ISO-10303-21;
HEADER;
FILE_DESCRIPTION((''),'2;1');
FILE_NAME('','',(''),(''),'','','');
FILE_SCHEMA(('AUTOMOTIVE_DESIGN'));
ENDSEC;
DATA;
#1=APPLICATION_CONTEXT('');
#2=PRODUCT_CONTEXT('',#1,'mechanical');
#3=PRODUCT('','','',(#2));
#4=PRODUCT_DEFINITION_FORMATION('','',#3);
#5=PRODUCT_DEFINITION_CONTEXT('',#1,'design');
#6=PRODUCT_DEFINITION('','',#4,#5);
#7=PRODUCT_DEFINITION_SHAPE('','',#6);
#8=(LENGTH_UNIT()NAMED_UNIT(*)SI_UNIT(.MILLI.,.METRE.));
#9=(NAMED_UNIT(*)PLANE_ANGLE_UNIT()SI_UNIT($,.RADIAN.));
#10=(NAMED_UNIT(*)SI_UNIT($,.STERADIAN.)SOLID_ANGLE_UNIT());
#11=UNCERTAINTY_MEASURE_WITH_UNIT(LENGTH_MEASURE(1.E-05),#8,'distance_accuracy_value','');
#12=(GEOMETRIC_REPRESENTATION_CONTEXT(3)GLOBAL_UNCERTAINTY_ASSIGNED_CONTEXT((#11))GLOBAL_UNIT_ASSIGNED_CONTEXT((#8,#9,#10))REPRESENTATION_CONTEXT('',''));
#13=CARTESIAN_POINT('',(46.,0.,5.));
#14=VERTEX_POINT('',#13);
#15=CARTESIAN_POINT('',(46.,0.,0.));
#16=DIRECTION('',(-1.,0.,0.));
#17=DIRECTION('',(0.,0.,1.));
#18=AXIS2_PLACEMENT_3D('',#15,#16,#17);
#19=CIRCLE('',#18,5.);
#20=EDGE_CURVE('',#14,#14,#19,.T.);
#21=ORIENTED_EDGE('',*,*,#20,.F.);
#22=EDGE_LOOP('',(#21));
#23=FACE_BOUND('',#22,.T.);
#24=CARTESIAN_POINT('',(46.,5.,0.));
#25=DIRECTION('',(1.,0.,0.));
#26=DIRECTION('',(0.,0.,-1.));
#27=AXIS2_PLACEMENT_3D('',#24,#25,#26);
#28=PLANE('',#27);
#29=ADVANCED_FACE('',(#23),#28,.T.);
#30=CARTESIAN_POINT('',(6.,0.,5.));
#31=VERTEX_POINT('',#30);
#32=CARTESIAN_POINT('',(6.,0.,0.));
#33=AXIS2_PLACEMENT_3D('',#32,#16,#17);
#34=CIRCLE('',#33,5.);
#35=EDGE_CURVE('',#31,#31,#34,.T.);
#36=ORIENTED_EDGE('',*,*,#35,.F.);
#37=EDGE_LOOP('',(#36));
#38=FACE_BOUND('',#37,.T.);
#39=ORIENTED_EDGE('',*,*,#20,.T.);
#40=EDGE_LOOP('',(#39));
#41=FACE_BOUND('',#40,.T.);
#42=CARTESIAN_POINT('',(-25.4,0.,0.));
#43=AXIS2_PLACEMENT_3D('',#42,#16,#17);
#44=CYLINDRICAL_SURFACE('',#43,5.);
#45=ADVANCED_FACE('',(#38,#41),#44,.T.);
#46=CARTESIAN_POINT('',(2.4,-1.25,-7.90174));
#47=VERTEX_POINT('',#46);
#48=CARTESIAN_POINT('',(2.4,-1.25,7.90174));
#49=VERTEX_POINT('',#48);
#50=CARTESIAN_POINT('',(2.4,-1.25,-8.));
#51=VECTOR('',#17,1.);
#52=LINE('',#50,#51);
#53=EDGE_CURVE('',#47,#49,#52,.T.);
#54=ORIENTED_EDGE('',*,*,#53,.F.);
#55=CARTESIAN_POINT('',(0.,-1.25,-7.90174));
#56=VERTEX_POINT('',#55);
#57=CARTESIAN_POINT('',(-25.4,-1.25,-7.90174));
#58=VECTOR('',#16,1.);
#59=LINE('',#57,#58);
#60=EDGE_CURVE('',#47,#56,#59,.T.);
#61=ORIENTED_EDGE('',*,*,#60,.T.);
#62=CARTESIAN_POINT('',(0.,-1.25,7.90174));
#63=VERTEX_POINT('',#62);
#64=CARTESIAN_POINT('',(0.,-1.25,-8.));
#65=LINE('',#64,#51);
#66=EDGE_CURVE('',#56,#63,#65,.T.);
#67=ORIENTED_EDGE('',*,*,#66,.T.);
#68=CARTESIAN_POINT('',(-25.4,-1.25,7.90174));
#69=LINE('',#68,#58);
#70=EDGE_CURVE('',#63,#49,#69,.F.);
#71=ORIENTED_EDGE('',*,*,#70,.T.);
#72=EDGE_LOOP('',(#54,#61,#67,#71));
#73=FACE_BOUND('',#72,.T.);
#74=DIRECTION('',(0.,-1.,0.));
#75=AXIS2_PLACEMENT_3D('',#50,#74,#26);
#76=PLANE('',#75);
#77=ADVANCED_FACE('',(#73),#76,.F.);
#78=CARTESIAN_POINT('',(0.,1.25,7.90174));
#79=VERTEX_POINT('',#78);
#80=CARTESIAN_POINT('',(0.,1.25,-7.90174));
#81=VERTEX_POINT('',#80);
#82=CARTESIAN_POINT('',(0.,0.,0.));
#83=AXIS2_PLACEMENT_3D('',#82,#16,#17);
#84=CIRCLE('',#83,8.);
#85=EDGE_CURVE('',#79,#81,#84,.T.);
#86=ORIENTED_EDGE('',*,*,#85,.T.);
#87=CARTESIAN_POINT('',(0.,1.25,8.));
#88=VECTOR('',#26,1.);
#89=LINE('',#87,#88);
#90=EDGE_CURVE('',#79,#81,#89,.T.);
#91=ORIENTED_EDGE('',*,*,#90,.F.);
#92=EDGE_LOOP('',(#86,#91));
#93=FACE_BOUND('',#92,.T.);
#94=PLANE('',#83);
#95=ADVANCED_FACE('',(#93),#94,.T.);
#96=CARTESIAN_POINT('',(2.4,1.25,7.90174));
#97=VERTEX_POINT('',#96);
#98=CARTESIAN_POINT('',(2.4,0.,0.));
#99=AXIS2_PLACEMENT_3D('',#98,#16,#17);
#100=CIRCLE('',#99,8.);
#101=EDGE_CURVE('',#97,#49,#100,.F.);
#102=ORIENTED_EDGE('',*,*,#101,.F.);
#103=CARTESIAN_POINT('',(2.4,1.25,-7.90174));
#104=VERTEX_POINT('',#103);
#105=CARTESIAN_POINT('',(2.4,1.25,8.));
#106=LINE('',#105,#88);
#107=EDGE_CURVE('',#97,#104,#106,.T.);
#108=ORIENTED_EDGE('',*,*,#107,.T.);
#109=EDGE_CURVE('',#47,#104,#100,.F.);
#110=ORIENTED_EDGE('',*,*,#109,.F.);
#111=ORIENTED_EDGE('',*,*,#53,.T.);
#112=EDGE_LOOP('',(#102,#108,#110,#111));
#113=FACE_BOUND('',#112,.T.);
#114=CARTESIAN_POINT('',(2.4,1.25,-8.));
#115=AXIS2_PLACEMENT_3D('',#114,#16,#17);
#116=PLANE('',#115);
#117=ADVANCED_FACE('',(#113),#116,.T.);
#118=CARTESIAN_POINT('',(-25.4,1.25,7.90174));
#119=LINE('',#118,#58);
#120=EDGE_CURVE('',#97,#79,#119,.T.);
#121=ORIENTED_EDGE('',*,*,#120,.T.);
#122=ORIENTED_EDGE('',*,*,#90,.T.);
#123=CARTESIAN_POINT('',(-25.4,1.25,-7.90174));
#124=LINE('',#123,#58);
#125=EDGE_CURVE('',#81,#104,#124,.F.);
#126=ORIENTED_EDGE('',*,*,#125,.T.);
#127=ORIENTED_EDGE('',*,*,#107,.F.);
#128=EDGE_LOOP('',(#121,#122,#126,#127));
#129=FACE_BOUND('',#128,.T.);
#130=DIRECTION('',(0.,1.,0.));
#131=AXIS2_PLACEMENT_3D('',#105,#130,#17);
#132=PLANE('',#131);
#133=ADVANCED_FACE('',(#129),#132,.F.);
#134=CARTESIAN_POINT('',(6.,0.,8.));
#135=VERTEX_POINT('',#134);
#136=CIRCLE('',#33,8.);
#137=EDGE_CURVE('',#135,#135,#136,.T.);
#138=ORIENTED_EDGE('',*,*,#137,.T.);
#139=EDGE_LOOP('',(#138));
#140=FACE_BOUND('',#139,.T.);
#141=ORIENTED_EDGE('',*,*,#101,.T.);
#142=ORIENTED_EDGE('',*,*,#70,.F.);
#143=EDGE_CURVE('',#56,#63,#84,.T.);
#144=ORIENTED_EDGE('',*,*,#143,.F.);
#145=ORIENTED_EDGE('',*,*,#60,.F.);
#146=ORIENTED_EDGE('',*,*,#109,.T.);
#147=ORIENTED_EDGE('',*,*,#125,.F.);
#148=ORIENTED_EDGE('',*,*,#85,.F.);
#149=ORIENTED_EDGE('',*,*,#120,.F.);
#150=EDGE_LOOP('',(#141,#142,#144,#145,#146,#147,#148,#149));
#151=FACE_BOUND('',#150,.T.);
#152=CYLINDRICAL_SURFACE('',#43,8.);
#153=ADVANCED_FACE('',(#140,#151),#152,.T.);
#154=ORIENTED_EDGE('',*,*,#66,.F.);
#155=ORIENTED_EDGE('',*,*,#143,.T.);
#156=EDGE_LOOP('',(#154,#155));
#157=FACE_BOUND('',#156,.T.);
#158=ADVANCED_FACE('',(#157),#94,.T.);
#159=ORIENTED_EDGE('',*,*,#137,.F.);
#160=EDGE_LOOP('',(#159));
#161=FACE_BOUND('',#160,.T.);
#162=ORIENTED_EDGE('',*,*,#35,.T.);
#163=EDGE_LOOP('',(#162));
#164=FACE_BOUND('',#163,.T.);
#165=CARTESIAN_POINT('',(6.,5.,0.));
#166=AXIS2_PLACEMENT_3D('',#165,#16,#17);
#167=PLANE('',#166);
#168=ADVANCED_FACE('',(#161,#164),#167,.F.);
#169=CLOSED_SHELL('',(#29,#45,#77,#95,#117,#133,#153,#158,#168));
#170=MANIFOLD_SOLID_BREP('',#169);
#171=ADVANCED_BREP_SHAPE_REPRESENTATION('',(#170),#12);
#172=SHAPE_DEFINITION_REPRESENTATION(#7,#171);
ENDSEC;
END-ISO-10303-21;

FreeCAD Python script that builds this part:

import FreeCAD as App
import Part
import Sketcher

V = App.Vector
Q = App.Units.Quantity


def add_polygon(sketch, points):
    """Adds a closed chain of lines whose ends are joined by coincident constraints."""
    first, n = sketch.GeometryCount, len(points)
    for a, b in zip(points, points[1:] + points[:1]):
        sketch.addGeometry(Part.LineSegment(App.Vector(*a, 0), App.Vector(*b, 0)), False)
    for i in range(n):
        sketch.addConstraint(Sketcher.Constraint("Coincident", first + i, 2, first + (i + 1) % n, 1))

doc = App.newDocument("Part")
params = doc.addObject("Spreadsheet::Sheet", "Params")
for row, (alias, value) in enumerate([
    ("sketch1_width", "6 mm"),
    ("sketch1_width2", "46 mm"),
    ("sketch1_height", "3 mm"),
    ("sketch1_height2", "8 mm"),
    ("revolution_angle", "360 deg"),
    ("sketch2_height", "16 mm"),
    ("sketch2_width", "2.5 mm"),
    ("pocket1_length", "2.4 mm"),
], start=1):
    params.set(f"A{row}", alias)
    params.set(f"B{row}", "=" + value)
    params.setAlias(f"B{row}", alias)

body = doc.addObject("PartDesign::Body", "Body")

# Sketch on XY plane
sketch1 = body.newObject("Sketcher::SketchObject", "Sketch")
sketch1.AttachmentSupport = (doc.getObject("XY_Plane"), [""])
sketch1.MapMode = "FlatFace"
add_polygon(sketch1, [(6, 5), (6, 8), (0, 8), (0, 0), (46, 0), (46, 5)])  # lines 0-5
sketch1.addConstraint(Sketcher.Constraint("Vertical", 0))
sketch1.addConstraint(Sketcher.Constraint("Horizontal", 1))
sketch1.addConstraint(Sketcher.Constraint("Vertical", 2))
sketch1.addConstraint(Sketcher.Constraint("Horizontal", 3))
sketch1.addConstraint(Sketcher.Constraint("Vertical", 4))
sketch1.addConstraint(Sketcher.Constraint("Horizontal", 5))
sketch1.addConstraint(Sketcher.Constraint("Coincident", 2, 2, -1, 1))
sketch1.addConstraint(Sketcher.Constraint("DistanceX", 1, 2, 1, 1, Q("6 mm")))
sketch1.addConstraint(Sketcher.Constraint("DistanceX", 3, 1, 3, 2, Q("46 mm")))
sketch1.addConstraint(Sketcher.Constraint("DistanceY", 0, 1, 0, 2, Q("3 mm")))
sketch1.addConstraint(Sketcher.Constraint("DistanceY", 2, 2, 2, 1, Q("8 mm")))
sketch1.setExpression("Constraints[13]", "Params.sketch1_width")
sketch1.setExpression("Constraints[14]", "Params.sketch1_width2")
sketch1.setExpression("Constraints[15]", "Params.sketch1_height")
sketch1.setExpression("Constraints[16]", "Params.sketch1_height2")
revolution = body.newObject("PartDesign::Revolution", "Revolution")
revolution.Profile = sketch1
revolution.ReferenceAxis = (sketch1, ["H_Axis"])
revolution.setExpression("Angle", "Params.revolution_angle")

# Sketch on YZ plane
sketch2 = body.newObject("Sketcher::SketchObject", "Sketch001")
sketch2.AttachmentSupport = (doc.getObject("YZ_Plane"), [""])
sketch2.MapMode = "FlatFace"
add_polygon(sketch2, [(1.25, 8), (-1.25, 8), (-1.25, -8), (1.25, -8)])  # lines 0-3
sketch2.addConstraint(Sketcher.Constraint("Horizontal", 0))
sketch2.addConstraint(Sketcher.Constraint("Vertical", 1))
sketch2.addConstraint(Sketcher.Constraint("Horizontal", 2))
sketch2.addConstraint(Sketcher.Constraint("Vertical", 3))
sketch2.addConstraint(Sketcher.Constraint("Symmetric", 0, 2, 2, 2, -1, 1))
sketch2.addConstraint(Sketcher.Constraint("DistanceY", 1, 2, 1, 1, Q("16 mm")))
sketch2.addConstraint(Sketcher.Constraint("DistanceX", 0, 2, 0, 1, Q("2.5 mm")))
sketch2.setExpression("Constraints[9]", "Params.sketch2_height")
sketch2.setExpression("Constraints[10]", "Params.sketch2_width")
pocket1 = body.newObject("PartDesign::Pocket", "Pocket")
pocket1.Profile = sketch2
pocket1.setExpression("Length", "Params.pocket1_length")
pocket1.Reversed = True

doc.recompute()
